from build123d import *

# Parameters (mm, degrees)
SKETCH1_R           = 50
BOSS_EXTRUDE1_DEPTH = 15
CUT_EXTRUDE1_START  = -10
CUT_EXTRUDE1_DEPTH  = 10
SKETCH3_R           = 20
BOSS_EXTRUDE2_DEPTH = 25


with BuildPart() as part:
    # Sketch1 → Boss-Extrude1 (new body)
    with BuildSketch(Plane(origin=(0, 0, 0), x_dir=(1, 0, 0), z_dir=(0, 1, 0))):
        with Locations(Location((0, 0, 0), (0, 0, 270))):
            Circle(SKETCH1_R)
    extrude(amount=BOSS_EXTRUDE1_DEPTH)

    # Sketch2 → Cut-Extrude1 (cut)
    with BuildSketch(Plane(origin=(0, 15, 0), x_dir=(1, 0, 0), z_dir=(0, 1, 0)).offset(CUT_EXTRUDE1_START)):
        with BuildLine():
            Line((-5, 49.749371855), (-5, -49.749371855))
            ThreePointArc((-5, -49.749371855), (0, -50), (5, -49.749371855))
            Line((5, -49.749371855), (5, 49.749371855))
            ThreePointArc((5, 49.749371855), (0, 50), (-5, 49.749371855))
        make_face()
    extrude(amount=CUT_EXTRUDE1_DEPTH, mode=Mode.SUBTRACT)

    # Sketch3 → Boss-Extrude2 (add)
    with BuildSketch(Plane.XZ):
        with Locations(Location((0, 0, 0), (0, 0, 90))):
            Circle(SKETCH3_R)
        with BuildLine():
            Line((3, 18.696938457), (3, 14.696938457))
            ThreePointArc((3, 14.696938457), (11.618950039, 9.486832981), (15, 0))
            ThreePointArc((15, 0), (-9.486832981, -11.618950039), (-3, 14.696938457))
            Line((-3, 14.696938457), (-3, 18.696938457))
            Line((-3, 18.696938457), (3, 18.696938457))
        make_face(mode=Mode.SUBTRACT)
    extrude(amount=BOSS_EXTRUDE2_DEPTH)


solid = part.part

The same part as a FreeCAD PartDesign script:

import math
import FreeCAD as App
import Part
import Sketcher
from FreeCAD import Vector

doc = App.newDocument("Part")
body = doc.addObject("PartDesign::Body", "Body")

sketch1 = body.newObject("Sketcher::SketchObject", "Sketch")
sketch1.AttachmentSupport = (doc.getObject("XZ_Plane"), [""])
sketch1.MapMode = "FlatFace"
sketch1.addGeometry(Part.Circle(Vector(0, 0, 0), Vector(0, 0, 1), 50), False)
sketch1.addConstraint([
    Sketcher.Constraint("Coincident", 0, 3, -1, 1),
    Sketcher.Constraint("Diameter", 0, 100.0),
])
pad1 = body.newObject("PartDesign::Pad", "Pad")
pad1.Profile = sketch1
pad1.Length = 15
pad1.Reversed = True

sketch2 = body.newObject("Sketcher::SketchObject", "Sketch001")
sketch2.AttachmentSupport = (doc.getObject("XZ_Plane"), [""])
sketch2.MapMode = "FlatFace"
sketch2.AttachmentOffset = App.Placement(Vector(0, 0, -5), App.Rotation())
sketch2.addGeometry([
    Part.LineSegment(Vector(-5, -50, 0), Vector(-5, 50, 0)),
    Part.ArcOfCircle(Part.Circle(Vector(0, 0, 0), Vector(0, 0, 1), 50), math.radians(84.26), math.radians(95.74)),
    Part.LineSegment(Vector(5, 50, 0), Vector(5, -50, 0)),
    Part.ArcOfCircle(Part.Circle(Vector(0, 0, 0), Vector(0, 0, 1), 50), math.radians(-95.74), math.radians(-84.26)),
], False)
sketch2.addConstraint([
    Sketcher.Constraint("Coincident", 0, 2, 1, 2),
    Sketcher.Constraint("Coincident", 1, 1, 2, 1),
    Sketcher.Constraint("Coincident", 2, 2, 3, 2),
    Sketcher.Constraint("Coincident", 3, 1, 0, 1),
    Sketcher.Constraint("Vertical", 0),
    Sketcher.Constraint("Vertical", 2),
    Sketcher.Constraint("Coincident", 1, 3, -1, 1),
    Sketcher.Constraint("Coincident", 3, 3, -1, 1),
    Sketcher.Constraint("Equal", 1, 3),
    Sketcher.Constraint("Horizontal", 0, 2, 1, 1),
    Sketcher.Constraint("Radius", 1, 50.0),
    Sketcher.Constraint("DistanceX", 0, 2, -1, 1, 5.0),
])
pocket1 = body.newObject("PartDesign::Pocket", "Pocket")
pocket1.Profile = sketch2
pocket1.Length = 10

sketch3 = body.newObject("Sketcher::SketchObject", "Sketch002")
sketch3.AttachmentSupport = (doc.getObject("XZ_Plane"), [""])
sketch3.MapMode = "FlatFace"
sketch3.addGeometry([
    Part.Circle(Vector(0, 0, 0), Vector(0, 0, 1), 20),
    Part.LineSegment(Vector(-3, 18.7, 0), Vector(3, 18.7, 0)),
    Part.LineSegment(Vector(3, 18.7, 0), Vector(3, 14.7, 0)),
    Part.ArcOfCircle(Part.Circle(Vector(0, 0, 0), Vector(0, 0, 1), 15), math.radians(0), math.radians(78)),
    Part.ArcOfCircle(Part.Circle(Vector(0, 0, 0), Vector(0, 0, 1), 15), math.radians(102), math.radians(360)),
    Part.LineSegment(Vector(-3, 14.7, 0), Vector(-3, 18.7, 0)),
], False)
sketch3.addConstraint([
    Sketcher.Constraint("Coincident", 1, 2, 2, 1),
    Sketcher.Constraint("Coincident", 2, 2, 3, 2),
    Sketcher.Constraint("Tangent", 3, 1, 4, 2),
    Sketcher.Constraint("Coincident", 4, 1, 5, 1),
    Sketcher.Constraint("Coincident", 5, 2, 1, 1),
    Sketcher.Constraint("Horizontal", 1),
    Sketcher.Constraint("Vertical", 2),
    Sketcher.Constraint("Vertical", 5),
    Sketcher.Constraint("Coincident", 0, 3, -1, 1),
    Sketcher.Constraint("Coincident", 3, 3, -1, 1),
    Sketcher.Constraint("Equal", 3, 4),
    Sketcher.Constraint("PointOnObject", 3, 1, -1),
    Sketcher.Constraint("Horizontal", 2, 2, 4, 1),
    Sketcher.Constraint("Diameter", 0, 40.0),
    Sketcher.Constraint("Radius", 3, 15.0),
    Sketcher.Constraint("DistanceX", 1, 1, 1, 2, 6.0),
    Sketcher.Constraint("DistanceY", 2, 2, 2, 1, 4.0),
])
pad2 = body.newObject("PartDesign::Pad", "Pad001")
pad2.Profile = sketch3
pad2.Length = 25

doc.recompute()
